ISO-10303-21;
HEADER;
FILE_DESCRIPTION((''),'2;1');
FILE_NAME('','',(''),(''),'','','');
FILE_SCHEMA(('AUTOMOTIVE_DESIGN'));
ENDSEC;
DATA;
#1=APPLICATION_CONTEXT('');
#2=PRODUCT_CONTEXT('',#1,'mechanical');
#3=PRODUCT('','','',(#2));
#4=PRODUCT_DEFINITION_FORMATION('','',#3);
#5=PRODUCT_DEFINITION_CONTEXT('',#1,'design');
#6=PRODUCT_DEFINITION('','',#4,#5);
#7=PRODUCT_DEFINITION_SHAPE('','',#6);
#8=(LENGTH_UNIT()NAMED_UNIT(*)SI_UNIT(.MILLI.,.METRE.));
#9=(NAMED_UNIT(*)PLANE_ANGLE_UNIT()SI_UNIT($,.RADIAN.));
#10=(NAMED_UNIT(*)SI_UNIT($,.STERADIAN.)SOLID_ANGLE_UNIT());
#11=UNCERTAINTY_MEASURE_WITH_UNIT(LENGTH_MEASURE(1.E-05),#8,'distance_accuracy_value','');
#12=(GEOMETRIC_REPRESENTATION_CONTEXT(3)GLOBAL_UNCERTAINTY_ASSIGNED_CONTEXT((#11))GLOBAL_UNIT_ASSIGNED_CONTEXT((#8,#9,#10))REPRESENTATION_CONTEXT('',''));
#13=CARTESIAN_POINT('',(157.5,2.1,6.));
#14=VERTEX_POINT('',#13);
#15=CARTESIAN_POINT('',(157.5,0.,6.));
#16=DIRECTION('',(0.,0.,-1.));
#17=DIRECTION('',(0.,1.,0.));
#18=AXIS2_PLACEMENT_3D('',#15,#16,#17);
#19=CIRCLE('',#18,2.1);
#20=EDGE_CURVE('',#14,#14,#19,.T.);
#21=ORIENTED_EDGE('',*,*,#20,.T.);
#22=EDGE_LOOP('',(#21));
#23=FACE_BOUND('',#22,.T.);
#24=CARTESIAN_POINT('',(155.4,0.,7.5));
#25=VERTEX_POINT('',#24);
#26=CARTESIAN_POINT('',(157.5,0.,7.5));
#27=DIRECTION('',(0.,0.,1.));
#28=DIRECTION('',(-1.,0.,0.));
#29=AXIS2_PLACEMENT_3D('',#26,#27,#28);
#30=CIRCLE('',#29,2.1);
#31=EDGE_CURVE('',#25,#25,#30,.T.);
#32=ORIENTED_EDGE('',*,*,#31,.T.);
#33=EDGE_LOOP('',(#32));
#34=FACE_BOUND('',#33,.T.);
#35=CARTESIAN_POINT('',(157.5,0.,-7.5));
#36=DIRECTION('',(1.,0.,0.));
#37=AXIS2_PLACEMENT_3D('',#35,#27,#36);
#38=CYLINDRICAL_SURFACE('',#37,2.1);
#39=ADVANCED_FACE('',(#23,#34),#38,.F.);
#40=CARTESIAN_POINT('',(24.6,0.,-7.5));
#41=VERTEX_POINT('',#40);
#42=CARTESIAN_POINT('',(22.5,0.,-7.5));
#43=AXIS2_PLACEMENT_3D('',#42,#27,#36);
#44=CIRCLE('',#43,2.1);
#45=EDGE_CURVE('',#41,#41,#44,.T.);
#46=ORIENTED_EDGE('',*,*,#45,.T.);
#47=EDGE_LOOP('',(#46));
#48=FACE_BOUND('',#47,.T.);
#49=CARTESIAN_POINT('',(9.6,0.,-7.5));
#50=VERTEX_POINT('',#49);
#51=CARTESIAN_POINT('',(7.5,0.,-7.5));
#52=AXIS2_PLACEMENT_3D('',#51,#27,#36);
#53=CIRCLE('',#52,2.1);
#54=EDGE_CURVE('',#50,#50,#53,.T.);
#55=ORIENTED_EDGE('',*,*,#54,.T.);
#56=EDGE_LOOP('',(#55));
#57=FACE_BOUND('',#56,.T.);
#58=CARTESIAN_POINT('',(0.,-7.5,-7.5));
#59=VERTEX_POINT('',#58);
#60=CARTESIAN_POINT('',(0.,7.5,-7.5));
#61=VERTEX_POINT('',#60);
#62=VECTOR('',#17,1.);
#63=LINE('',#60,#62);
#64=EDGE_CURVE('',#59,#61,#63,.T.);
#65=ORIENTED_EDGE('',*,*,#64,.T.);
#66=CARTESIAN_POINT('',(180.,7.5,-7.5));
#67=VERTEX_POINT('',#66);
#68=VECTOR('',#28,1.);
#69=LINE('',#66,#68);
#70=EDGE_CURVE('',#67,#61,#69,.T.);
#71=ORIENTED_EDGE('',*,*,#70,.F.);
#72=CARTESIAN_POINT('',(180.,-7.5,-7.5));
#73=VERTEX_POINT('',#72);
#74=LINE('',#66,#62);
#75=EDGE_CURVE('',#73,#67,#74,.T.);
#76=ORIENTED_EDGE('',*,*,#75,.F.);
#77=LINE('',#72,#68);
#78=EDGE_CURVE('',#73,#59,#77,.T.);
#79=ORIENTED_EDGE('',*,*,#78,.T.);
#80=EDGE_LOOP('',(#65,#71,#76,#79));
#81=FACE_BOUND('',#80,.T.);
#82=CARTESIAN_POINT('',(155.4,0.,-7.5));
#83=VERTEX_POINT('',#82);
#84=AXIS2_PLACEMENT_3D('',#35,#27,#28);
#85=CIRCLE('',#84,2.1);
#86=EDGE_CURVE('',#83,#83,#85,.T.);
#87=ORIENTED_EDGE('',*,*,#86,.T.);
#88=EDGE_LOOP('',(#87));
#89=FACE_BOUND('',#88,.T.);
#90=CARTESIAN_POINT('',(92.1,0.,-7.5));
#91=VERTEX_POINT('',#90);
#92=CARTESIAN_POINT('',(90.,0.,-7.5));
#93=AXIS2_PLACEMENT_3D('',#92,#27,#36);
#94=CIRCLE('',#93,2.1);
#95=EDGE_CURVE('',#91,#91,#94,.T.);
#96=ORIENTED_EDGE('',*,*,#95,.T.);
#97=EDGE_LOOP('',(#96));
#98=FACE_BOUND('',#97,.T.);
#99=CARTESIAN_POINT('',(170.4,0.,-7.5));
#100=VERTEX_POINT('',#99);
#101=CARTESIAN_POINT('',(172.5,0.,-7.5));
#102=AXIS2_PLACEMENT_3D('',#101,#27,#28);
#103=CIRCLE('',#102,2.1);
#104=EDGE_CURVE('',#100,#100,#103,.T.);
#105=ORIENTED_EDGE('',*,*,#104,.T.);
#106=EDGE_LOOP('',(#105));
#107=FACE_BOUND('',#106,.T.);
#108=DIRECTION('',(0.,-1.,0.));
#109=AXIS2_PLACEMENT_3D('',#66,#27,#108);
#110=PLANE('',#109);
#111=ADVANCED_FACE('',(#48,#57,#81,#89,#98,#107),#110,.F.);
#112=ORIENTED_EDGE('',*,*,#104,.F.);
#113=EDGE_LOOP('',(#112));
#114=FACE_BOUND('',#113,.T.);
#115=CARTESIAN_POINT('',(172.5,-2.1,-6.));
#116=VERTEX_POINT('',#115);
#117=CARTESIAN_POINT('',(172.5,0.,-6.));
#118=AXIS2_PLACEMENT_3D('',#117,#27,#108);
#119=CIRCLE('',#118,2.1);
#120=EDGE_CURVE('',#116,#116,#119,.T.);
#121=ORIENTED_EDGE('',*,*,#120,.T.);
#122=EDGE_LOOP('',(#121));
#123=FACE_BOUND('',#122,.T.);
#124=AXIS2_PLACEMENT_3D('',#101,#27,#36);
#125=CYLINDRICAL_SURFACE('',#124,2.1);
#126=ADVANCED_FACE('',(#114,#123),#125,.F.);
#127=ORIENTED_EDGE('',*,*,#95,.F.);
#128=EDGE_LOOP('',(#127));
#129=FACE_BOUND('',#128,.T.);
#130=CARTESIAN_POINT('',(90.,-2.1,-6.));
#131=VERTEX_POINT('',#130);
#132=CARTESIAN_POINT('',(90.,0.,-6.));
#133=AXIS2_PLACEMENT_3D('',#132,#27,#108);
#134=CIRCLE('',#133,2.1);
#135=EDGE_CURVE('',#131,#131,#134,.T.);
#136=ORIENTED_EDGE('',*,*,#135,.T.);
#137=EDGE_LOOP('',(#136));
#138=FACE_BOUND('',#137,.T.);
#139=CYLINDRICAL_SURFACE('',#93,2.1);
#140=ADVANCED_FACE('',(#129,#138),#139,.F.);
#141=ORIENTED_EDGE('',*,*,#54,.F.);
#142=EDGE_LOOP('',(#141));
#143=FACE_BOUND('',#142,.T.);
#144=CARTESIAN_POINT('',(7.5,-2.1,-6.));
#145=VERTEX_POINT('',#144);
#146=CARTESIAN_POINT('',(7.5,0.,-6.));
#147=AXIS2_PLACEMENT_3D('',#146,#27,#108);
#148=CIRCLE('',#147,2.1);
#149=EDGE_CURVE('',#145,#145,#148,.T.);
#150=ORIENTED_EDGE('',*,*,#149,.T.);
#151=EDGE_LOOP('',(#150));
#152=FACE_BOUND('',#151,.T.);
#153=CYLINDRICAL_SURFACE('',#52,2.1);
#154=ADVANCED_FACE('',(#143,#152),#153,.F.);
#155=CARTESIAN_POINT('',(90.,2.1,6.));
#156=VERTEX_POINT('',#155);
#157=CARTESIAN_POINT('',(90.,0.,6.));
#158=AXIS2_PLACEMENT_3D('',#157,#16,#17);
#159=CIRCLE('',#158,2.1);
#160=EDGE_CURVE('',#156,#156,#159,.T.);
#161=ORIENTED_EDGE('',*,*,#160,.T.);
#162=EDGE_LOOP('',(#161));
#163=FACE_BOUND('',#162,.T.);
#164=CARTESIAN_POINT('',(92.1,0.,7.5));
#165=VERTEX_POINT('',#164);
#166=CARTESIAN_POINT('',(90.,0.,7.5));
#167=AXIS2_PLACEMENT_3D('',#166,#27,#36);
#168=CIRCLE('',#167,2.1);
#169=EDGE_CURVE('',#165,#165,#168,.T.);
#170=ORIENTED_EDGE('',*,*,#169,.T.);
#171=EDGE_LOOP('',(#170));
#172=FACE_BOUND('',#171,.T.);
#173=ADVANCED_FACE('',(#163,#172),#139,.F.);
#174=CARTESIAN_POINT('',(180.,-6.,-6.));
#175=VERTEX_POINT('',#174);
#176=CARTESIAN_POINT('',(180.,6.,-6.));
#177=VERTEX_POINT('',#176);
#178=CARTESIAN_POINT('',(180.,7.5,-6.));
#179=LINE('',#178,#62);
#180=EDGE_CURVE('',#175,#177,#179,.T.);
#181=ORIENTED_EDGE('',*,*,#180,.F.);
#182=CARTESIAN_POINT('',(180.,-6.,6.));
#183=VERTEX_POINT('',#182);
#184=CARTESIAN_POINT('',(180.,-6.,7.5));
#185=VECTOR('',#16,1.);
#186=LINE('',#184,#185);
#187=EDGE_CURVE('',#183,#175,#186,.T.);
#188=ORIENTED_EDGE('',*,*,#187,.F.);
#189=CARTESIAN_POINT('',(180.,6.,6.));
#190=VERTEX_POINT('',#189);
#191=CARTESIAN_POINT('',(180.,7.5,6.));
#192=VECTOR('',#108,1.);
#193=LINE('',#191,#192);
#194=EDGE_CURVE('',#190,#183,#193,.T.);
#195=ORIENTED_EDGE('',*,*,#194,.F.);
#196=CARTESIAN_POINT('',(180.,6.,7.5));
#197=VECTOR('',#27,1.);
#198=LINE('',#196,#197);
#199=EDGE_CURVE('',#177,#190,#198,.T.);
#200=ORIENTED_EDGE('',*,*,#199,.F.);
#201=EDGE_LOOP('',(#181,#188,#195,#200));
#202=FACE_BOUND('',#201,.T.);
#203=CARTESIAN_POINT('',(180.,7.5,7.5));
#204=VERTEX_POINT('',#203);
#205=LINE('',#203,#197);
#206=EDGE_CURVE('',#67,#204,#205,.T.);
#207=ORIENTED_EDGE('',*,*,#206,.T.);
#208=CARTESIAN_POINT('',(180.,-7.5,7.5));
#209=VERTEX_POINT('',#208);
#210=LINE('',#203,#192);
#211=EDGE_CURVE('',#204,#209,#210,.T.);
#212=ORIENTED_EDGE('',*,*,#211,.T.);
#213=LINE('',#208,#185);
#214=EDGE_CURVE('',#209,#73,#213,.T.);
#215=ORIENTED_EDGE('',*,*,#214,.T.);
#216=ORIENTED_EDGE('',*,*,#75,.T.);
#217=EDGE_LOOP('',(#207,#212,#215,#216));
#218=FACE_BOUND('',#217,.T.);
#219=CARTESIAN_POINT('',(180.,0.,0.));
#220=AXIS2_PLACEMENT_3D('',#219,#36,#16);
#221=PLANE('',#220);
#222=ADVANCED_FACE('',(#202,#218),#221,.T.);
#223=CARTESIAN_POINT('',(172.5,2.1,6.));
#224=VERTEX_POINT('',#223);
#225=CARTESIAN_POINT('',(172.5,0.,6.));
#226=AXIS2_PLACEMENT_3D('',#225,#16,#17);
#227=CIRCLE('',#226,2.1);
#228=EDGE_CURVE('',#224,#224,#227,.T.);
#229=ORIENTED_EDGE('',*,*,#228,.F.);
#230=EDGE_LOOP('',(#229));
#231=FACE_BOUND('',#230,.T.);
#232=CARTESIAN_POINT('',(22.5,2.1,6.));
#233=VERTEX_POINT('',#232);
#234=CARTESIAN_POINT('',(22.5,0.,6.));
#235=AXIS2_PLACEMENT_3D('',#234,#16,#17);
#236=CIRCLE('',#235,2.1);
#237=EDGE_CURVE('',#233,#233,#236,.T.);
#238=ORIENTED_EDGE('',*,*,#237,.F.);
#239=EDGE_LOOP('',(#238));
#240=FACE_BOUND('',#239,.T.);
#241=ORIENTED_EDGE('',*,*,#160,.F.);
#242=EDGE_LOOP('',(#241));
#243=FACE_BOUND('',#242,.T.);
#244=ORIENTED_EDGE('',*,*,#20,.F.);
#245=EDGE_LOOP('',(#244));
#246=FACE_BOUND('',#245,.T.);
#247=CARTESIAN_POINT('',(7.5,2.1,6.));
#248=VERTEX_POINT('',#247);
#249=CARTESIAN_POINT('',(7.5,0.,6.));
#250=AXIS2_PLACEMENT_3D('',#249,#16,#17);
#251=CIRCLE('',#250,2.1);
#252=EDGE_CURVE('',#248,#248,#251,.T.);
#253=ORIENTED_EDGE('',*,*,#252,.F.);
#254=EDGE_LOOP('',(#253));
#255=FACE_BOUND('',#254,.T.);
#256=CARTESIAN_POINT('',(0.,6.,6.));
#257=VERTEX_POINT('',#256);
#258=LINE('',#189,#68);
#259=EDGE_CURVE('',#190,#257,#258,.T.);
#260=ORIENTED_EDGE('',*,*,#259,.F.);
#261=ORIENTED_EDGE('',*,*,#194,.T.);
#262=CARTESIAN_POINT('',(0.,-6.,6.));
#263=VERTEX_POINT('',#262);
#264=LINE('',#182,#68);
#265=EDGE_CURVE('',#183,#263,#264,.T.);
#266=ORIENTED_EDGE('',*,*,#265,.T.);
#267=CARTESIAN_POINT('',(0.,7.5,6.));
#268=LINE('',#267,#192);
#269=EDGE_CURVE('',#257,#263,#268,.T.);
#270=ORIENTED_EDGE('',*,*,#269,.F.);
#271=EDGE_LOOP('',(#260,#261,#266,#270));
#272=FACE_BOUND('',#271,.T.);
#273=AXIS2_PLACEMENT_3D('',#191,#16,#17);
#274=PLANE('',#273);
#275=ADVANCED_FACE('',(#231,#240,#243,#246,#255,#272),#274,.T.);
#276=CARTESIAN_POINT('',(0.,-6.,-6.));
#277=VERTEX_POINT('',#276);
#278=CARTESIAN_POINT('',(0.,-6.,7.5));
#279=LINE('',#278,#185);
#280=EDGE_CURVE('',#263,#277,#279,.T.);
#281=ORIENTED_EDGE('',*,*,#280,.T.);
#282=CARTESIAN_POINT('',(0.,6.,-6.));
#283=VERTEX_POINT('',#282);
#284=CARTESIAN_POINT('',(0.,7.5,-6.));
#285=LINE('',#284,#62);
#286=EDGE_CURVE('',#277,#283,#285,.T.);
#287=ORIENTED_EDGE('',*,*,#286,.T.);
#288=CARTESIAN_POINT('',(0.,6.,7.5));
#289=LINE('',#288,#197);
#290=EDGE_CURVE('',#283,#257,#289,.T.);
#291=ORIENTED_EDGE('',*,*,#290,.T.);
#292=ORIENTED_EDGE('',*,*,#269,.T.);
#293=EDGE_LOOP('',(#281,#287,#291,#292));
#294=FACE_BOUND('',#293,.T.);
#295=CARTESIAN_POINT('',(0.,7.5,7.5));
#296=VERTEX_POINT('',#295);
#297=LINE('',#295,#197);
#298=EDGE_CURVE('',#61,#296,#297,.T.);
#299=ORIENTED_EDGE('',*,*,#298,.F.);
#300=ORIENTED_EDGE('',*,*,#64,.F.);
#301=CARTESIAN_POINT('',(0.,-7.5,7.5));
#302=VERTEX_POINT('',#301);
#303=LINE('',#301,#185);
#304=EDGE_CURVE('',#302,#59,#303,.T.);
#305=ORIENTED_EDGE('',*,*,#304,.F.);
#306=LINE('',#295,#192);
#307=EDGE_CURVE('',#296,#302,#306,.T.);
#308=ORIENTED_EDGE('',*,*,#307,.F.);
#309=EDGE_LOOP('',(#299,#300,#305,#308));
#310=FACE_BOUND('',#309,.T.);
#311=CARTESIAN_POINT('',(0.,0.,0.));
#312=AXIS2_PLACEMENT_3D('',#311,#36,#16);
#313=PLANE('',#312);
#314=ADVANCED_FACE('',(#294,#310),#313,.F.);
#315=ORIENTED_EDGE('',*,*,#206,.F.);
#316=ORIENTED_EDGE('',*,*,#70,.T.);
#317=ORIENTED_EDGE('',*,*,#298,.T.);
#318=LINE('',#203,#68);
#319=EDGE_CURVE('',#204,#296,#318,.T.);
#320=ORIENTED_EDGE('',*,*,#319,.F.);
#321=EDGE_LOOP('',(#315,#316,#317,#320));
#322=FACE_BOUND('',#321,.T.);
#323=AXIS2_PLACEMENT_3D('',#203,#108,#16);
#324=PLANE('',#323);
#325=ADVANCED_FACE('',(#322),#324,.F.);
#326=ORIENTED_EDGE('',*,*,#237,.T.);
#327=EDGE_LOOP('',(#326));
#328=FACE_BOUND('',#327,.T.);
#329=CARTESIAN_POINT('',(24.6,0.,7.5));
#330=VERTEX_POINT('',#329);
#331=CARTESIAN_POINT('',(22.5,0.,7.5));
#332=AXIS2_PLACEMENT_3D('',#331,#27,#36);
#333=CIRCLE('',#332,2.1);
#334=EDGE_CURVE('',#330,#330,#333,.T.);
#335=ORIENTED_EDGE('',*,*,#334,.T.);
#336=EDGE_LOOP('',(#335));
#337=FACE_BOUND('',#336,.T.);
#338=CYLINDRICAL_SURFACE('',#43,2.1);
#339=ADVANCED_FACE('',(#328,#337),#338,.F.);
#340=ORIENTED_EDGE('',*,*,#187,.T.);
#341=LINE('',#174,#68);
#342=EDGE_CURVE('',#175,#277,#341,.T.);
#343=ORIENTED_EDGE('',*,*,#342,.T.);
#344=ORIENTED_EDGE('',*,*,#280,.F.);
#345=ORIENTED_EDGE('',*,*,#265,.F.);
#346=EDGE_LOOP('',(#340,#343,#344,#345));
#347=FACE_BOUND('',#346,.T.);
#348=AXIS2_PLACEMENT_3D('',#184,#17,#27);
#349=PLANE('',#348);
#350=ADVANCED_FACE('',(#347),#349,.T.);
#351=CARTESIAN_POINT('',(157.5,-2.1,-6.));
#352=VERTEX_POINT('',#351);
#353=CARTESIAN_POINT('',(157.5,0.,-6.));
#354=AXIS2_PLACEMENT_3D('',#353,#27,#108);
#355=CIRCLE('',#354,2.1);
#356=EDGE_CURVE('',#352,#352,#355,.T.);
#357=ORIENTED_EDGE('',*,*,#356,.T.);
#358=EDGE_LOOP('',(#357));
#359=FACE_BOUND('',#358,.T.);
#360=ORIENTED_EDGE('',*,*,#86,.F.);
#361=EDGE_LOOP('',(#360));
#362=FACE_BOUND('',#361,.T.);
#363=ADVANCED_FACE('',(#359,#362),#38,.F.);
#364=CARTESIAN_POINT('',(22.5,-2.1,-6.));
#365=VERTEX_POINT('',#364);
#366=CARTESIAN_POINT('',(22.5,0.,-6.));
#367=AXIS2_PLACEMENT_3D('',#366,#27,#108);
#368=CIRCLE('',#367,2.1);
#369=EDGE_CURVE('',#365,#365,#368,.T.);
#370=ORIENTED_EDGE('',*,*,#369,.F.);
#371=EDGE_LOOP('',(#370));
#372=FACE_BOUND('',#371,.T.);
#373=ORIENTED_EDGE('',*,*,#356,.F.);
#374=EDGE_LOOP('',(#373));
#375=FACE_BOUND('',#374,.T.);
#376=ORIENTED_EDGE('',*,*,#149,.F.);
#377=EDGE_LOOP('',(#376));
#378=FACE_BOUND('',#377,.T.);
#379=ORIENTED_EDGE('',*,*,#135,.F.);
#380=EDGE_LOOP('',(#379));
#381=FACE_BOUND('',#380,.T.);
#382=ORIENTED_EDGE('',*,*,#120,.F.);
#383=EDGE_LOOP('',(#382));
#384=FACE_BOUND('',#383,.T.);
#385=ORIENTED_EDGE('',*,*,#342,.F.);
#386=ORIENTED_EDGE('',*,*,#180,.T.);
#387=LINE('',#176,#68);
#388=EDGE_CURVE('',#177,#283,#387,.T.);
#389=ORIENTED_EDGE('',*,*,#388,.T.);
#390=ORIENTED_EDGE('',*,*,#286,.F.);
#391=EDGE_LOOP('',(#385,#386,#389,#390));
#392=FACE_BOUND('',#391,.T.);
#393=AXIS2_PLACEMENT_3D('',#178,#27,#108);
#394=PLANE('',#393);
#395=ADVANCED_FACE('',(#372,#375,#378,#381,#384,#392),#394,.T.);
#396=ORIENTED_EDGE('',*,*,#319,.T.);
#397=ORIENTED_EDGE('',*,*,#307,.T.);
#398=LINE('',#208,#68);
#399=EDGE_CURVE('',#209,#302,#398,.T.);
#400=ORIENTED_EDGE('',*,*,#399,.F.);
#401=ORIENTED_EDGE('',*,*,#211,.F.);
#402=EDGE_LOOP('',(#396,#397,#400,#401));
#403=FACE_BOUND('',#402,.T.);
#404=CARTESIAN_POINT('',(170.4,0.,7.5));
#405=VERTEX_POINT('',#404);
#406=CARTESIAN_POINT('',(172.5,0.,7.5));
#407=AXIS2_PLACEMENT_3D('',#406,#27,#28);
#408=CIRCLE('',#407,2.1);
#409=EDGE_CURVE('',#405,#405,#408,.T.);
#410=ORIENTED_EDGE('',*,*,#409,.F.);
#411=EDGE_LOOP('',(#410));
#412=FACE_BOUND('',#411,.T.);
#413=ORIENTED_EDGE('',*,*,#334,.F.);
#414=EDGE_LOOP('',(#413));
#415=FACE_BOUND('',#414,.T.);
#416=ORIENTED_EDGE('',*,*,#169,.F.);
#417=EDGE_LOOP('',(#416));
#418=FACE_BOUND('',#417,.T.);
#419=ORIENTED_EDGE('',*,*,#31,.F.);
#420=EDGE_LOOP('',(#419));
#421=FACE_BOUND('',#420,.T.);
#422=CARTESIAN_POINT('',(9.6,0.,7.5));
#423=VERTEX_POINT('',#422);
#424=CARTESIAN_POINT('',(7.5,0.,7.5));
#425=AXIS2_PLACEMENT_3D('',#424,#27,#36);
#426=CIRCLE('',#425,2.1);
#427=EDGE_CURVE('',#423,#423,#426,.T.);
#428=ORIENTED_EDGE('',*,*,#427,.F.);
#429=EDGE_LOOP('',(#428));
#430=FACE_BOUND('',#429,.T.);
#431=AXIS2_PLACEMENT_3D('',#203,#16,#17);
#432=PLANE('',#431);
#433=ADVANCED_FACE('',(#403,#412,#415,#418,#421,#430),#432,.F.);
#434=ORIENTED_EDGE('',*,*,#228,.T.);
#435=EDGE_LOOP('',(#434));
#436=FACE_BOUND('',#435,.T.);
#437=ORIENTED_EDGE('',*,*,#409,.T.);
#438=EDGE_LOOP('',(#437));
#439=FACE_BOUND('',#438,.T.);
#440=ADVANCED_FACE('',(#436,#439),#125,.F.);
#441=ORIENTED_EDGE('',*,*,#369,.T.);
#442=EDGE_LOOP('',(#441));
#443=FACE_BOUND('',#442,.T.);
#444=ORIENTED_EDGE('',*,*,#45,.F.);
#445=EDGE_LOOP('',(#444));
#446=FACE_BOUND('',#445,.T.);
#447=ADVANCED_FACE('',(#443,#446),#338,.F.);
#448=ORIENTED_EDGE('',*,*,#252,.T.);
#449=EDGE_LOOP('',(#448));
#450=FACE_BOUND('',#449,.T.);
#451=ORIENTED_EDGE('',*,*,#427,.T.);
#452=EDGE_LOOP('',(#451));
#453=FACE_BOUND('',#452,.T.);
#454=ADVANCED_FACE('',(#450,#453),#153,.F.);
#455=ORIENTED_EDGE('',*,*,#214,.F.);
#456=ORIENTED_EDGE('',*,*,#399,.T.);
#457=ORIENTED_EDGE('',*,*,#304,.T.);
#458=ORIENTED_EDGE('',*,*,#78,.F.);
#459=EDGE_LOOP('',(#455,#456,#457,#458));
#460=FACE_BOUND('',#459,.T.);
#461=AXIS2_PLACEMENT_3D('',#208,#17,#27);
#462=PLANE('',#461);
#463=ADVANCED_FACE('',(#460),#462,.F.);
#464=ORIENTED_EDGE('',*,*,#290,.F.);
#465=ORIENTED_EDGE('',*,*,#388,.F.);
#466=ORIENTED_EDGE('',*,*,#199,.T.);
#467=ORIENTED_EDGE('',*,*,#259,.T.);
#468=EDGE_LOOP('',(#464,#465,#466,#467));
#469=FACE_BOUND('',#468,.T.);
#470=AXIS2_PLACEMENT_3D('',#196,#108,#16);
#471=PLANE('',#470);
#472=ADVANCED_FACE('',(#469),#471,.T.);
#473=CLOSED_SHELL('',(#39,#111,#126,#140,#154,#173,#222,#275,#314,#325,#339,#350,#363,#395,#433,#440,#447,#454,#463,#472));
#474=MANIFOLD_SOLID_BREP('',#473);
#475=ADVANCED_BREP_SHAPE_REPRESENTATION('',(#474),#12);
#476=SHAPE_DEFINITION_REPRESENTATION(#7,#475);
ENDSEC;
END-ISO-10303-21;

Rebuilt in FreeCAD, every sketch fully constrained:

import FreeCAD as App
import Part
import Sketcher


def add_polygon(sketch, points):
    """Adds a closed chain of lines whose ends are joined by coincident constraints."""
    first, n = sketch.GeometryCount, len(points)
    for a, b in zip(points, points[1:] + points[:1]):
        sketch.addGeometry(Part.LineSegment(App.Vector(*a, 0), App.Vector(*b, 0)), False)
    for i in range(n):
        sketch.addConstraint(Sketcher.Constraint("Coincident", first + i, 2, first + (i + 1) % n, 1))

doc = App.newDocument("Part")
body = doc.addObject("PartDesign::Body", "Body")

sketch1 = body.newObject("Sketcher::SketchObject", "Sketch")
sketch1.AttachmentSupport = (doc.getObject("YZ_Plane"), [""])
sketch1.MapMode = "FlatFace"
add_polygon(sketch1, [(8, 8), (-8, 8), (-8, -8), (8, -8)])
add_polygon(sketch1, [(-6, -6), (-6, 6), (6, 6), (6, -6)])
sketch1.addConstraint(Sketcher.Constraint("Horizontal", 0))
sketch1.addConstraint(Sketcher.Constraint("Vertical", 1))
sketch1.addConstraint(Sketcher.Constraint("Horizontal", 2))
sketch1.addConstraint(Sketcher.Constraint("Vertical", 3))
sketch1.addConstraint(Sketcher.Constraint("Vertical", 4))
sketch1.addConstraint(Sketcher.Constraint("Horizontal", 5))
sketch1.addConstraint(Sketcher.Constraint("Vertical", 6))
sketch1.addConstraint(Sketcher.Constraint("Horizontal", 7))
sketch1.addConstraint(Sketcher.Constraint("Symmetric", 0, 2, 2, 2, -1, 1))
sketch1.addConstraint(Sketcher.Constraint("Symmetric", 4, 2, 6, 2, -1, 1))
sketch1.addConstraint(Sketcher.Constraint("Equal", 2, 1))
sketch1.addConstraint(Sketcher.Constraint("Equal", 7, 4))
sketch1.addConstraint(Sketcher.Constraint("DistanceX", 0, 2, 0, 1, 15.0))
sketch1.addConstraint(Sketcher.Constraint("DistanceX", 5, 1, 5, 2, 12.0))
pad1 = body.newObject("PartDesign::Pad", "Pad")
pad1.Profile = sketch1
pad1.Length = 180

sketch2 = body.newObject("Sketcher::SketchObject", "Sketch001")
sketch2.AttachmentSupport = (doc.getObject("XY_Plane"), [""])
sketch2.MapMode = "FlatFace"
sketch2.AttachmentOffset = App.Placement(App.Vector(0, 0, 7.5), App.Rotation())
sketch2.addGeometry(Part.Circle(App.Vector(22.5, 0, 0), App.Vector(0, 0, 1), 2.1), False)
sketch2.addGeometry(Part.Circle(App.Vector(7.5, 0, 0), App.Vector(0, 0, 1), 2.1), False)
sketch2.addGeometry(Part.Circle(App.Vector(172.5, 0, 0), App.Vector(0, 0, 1), 2.1), False)
sketch2.addGeometry(Part.Circle(App.Vector(157.5, 0, 0), App.Vector(0, 0, 1), 2.1), False)
sketch2.addGeometry(Part.Circle(App.Vector(90, 0, 0), App.Vector(0, 0, 1), 2.1), False)
sketch2.addConstraint(Sketcher.Constraint("Equal", 0, 1))
sketch2.addConstraint(Sketcher.Constraint("Equal", 1, 2))
sketch2.addConstraint(Sketcher.Constraint("Equal", 2, 3))
sketch2.addConstraint(Sketcher.Constraint("Equal", 3, 4))
sketch2.addConstraint(Sketcher.Constraint("PointOnObject", 0, 3, -1))
sketch2.addConstraint(Sketcher.Constraint("PointOnObject", 1, 3, -1))
sketch2.addConstraint(Sketcher.Constraint("PointOnObject", 2, 3, -1))
sketch2.addConstraint(Sketcher.Constraint("PointOnObject", 3, 3, -1))
sketch2.addConstraint(Sketcher.Constraint("PointOnObject", 4, 3, -1))
sketch2.addConstraint(Sketcher.Constraint("Diameter", 0, 4.2))
sketch2.addConstraint(Sketcher.Constraint("DistanceX", -1, 1, 4, 3, 90.0))
sketch2.addConstraint(Sketcher.Constraint("DistanceX", 1, 3, 0, 3, 15.0))
sketch2.addConstraint(Sketcher.Constraint("DistanceX", 0, 3, 2, 3, 150.0))
sketch2.addConstraint(Sketcher.Constraint("DistanceX", 3, 3, 2, 3, 15.0))
sketch2.addConstraint(Sketcher.Constraint("DistanceX", -1, 1, 0, 3, 22.5))
pocket1 = body.newObject("PartDesign::Pocket", "Pocket")
pocket1.Profile = sketch2
pocket1.Type = "ThroughAll"

doc.recompute()
